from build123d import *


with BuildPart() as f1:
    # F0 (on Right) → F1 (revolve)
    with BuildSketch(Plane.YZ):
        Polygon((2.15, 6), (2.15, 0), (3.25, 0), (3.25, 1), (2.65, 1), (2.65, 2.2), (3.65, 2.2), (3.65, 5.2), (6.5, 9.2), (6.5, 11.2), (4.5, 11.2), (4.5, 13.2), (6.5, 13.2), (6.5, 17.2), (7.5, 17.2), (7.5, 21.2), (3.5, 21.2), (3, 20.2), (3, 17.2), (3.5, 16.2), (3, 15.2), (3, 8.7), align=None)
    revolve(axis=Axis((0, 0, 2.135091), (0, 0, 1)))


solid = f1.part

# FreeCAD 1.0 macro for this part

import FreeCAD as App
import Part
import Sketcher

V = App.Vector


def add_polygon(sketch, points):
    """Adds a closed chain of lines whose ends are joined by coincident constraints."""
    first, n = sketch.GeometryCount, len(points)
    for a, b in zip(points, points[1:] + points[:1]):
        sketch.addGeometry(Part.LineSegment(App.Vector(*a, 0), App.Vector(*b, 0)), False)
    for i in range(n):
        sketch.addConstraint(Sketcher.Constraint("Coincident", first + i, 2, first + (i + 1) % n, 1))

doc = App.newDocument("Part")
params = doc.addObject("Spreadsheet::Sheet", "Params")
for row, (alias, value) in enumerate([
    ("sketch1_width", "1 mm"),
    ("sketch1_width2", "2 mm"),
    ("sketch1_width3", "4 mm"),
    ("sketch1_height", "6 mm"),
    ("sketch1_height2", "3 mm"),
    ("revolution_angle", "360 deg"),
], start=1):
    params.set(f"A{row}", alias)
    params.set(f"B{row}", "=" + value)
    params.setAlias(f"B{row}", alias)

body = doc.addObject("PartDesign::Body", "Body")

# Sketch on YZ plane
sketch1 = body.newObject("Sketcher::SketchObject", "Sketch")
sketch1.AttachmentSupport = (doc.getObject("YZ_Plane"), [""])
sketch1.MapMode = "FlatFace"
add_polygon(sketch1, [(2.1, 6), (2.1, 0), (3.2, 0), (3.2, 1), (2.6, 1), (2.6, 2.2), (3.6, 2.2), (3.6, 5.2), (6.5, 9.2), (6.5, 11.2), (4.5, 11.2), (4.5, 13.2), (6.5, 13.2), (6.5, 17.2), (7.5, 17.2), (7.5, 21.2), (3.5, 21.2), (3, 20.2), (3, 17.2), (3.5, 16.2), (3, 15.2), (3, 8.7)])  # lines 0-21
sketch1.addConstraint([
    Sketcher.Constraint("Vertical", 0),
    Sketcher.Constraint("Horizontal", 1),
    Sketcher.Constraint("Vertical", 2),
    Sketcher.Constraint("Horizontal", 3),
    Sketcher.Constraint("Vertical", 4),
    Sketcher.Constraint("Horizontal", 5),
    Sketcher.Constraint("Vertical", 6),
    Sketcher.Constraint("Vertical", 8),
    Sketcher.Constraint("Horizontal", 9),
    Sketcher.Constraint("Vertical", 10),
    Sketcher.Constraint("Horizontal", 11),
    Sketcher.Constraint("Vertical", 12),
    Sketcher.Constraint("Horizontal", 13),
    Sketcher.Constraint("Vertical", 14),
    Sketcher.Constraint("Horizontal", 15),
    Sketcher.Constraint("Vertical", 17),
    Sketcher.Constraint("Vertical", 20),
    Sketcher.Constraint("PointOnObject", 0, 2, -1),
    Sketcher.Constraint("Parallel", 16, 19),
    Sketcher.Constraint("Horizontal", 13, 2, 17, 2),
    Sketcher.Constraint("Vertical", 8, 2, 11, 2),
    Sketcher.Constraint("Vertical", 15, 2, 18, 2),
    Sketcher.Constraint("Vertical", 17, 2, 19, 2),
    Sketcher.Constraint("Equal", 5, 13),
    Sketcher.Constraint("Equal", 13, 2),
    Sketcher.Constraint("Equal", 11, 8),
    Sketcher.Constraint("Equal", 8, 10),
    Sketcher.Constraint("Equal", 15, 12),
    Sketcher.Constraint("Equal", 12, 14),
    Sketcher.Constraint("Equal", 6, 17),
    Sketcher.Constraint("Equal", 16, 18),
    Sketcher.Constraint("DistanceX", 5, 1, 5, 2, 1.0),
    Sketcher.Constraint("DistanceX", 9, 2, 9, 1, 2.0),
    Sketcher.Constraint("DistanceX", 15, 2, 15, 1, 4.0),
    Sketcher.Constraint("DistanceY", 0, 2, 0, 1, 6.0),
    Sketcher.Constraint("DistanceY", 6, 1, 6, 2, 3.0),
    Sketcher.Constraint("DistanceX", 1, 1, 1, 2, 1.1),
    Sketcher.Constraint("DistanceX", 3, 2, 3, 1, 0.6),
    Sketcher.Constraint("DistanceY", 4, 1, 4, 2, 1.2),
    Sketcher.Constraint("DistanceY", 20, 2, 20, 1, 6.5),
    Sketcher.Constraint("DistanceX", -1, 1, 16, 2, 3.0),
    Sketcher.Constraint("DistanceY", 6, 2, 7, 2, 4.0),
    Sketcher.Constraint("DistanceX", -1, 1, 7, 2, 6.5),
    Sketcher.Constraint("DistanceX", -1, 1, 0, 2, 2.15),
])
sketch1.setExpression("Constraints[53]", "Params.sketch1_width")
sketch1.setExpression("Constraints[54]", "Params.sketch1_width2")
sketch1.setExpression("Constraints[55]", "Params.sketch1_width3")
sketch1.setExpression("Constraints[56]", "Params.sketch1_height")
sketch1.setExpression("Constraints[57]", "Params.sketch1_height2")
revolution = body.newObject("PartDesign::Revolution", "Revolution")
revolution.Profile = sketch1
revolution.ReferenceAxis = (sketch1, ["V_Axis"])
revolution.setExpression("Angle", "Params.revolution_angle")

doc.recompute()
